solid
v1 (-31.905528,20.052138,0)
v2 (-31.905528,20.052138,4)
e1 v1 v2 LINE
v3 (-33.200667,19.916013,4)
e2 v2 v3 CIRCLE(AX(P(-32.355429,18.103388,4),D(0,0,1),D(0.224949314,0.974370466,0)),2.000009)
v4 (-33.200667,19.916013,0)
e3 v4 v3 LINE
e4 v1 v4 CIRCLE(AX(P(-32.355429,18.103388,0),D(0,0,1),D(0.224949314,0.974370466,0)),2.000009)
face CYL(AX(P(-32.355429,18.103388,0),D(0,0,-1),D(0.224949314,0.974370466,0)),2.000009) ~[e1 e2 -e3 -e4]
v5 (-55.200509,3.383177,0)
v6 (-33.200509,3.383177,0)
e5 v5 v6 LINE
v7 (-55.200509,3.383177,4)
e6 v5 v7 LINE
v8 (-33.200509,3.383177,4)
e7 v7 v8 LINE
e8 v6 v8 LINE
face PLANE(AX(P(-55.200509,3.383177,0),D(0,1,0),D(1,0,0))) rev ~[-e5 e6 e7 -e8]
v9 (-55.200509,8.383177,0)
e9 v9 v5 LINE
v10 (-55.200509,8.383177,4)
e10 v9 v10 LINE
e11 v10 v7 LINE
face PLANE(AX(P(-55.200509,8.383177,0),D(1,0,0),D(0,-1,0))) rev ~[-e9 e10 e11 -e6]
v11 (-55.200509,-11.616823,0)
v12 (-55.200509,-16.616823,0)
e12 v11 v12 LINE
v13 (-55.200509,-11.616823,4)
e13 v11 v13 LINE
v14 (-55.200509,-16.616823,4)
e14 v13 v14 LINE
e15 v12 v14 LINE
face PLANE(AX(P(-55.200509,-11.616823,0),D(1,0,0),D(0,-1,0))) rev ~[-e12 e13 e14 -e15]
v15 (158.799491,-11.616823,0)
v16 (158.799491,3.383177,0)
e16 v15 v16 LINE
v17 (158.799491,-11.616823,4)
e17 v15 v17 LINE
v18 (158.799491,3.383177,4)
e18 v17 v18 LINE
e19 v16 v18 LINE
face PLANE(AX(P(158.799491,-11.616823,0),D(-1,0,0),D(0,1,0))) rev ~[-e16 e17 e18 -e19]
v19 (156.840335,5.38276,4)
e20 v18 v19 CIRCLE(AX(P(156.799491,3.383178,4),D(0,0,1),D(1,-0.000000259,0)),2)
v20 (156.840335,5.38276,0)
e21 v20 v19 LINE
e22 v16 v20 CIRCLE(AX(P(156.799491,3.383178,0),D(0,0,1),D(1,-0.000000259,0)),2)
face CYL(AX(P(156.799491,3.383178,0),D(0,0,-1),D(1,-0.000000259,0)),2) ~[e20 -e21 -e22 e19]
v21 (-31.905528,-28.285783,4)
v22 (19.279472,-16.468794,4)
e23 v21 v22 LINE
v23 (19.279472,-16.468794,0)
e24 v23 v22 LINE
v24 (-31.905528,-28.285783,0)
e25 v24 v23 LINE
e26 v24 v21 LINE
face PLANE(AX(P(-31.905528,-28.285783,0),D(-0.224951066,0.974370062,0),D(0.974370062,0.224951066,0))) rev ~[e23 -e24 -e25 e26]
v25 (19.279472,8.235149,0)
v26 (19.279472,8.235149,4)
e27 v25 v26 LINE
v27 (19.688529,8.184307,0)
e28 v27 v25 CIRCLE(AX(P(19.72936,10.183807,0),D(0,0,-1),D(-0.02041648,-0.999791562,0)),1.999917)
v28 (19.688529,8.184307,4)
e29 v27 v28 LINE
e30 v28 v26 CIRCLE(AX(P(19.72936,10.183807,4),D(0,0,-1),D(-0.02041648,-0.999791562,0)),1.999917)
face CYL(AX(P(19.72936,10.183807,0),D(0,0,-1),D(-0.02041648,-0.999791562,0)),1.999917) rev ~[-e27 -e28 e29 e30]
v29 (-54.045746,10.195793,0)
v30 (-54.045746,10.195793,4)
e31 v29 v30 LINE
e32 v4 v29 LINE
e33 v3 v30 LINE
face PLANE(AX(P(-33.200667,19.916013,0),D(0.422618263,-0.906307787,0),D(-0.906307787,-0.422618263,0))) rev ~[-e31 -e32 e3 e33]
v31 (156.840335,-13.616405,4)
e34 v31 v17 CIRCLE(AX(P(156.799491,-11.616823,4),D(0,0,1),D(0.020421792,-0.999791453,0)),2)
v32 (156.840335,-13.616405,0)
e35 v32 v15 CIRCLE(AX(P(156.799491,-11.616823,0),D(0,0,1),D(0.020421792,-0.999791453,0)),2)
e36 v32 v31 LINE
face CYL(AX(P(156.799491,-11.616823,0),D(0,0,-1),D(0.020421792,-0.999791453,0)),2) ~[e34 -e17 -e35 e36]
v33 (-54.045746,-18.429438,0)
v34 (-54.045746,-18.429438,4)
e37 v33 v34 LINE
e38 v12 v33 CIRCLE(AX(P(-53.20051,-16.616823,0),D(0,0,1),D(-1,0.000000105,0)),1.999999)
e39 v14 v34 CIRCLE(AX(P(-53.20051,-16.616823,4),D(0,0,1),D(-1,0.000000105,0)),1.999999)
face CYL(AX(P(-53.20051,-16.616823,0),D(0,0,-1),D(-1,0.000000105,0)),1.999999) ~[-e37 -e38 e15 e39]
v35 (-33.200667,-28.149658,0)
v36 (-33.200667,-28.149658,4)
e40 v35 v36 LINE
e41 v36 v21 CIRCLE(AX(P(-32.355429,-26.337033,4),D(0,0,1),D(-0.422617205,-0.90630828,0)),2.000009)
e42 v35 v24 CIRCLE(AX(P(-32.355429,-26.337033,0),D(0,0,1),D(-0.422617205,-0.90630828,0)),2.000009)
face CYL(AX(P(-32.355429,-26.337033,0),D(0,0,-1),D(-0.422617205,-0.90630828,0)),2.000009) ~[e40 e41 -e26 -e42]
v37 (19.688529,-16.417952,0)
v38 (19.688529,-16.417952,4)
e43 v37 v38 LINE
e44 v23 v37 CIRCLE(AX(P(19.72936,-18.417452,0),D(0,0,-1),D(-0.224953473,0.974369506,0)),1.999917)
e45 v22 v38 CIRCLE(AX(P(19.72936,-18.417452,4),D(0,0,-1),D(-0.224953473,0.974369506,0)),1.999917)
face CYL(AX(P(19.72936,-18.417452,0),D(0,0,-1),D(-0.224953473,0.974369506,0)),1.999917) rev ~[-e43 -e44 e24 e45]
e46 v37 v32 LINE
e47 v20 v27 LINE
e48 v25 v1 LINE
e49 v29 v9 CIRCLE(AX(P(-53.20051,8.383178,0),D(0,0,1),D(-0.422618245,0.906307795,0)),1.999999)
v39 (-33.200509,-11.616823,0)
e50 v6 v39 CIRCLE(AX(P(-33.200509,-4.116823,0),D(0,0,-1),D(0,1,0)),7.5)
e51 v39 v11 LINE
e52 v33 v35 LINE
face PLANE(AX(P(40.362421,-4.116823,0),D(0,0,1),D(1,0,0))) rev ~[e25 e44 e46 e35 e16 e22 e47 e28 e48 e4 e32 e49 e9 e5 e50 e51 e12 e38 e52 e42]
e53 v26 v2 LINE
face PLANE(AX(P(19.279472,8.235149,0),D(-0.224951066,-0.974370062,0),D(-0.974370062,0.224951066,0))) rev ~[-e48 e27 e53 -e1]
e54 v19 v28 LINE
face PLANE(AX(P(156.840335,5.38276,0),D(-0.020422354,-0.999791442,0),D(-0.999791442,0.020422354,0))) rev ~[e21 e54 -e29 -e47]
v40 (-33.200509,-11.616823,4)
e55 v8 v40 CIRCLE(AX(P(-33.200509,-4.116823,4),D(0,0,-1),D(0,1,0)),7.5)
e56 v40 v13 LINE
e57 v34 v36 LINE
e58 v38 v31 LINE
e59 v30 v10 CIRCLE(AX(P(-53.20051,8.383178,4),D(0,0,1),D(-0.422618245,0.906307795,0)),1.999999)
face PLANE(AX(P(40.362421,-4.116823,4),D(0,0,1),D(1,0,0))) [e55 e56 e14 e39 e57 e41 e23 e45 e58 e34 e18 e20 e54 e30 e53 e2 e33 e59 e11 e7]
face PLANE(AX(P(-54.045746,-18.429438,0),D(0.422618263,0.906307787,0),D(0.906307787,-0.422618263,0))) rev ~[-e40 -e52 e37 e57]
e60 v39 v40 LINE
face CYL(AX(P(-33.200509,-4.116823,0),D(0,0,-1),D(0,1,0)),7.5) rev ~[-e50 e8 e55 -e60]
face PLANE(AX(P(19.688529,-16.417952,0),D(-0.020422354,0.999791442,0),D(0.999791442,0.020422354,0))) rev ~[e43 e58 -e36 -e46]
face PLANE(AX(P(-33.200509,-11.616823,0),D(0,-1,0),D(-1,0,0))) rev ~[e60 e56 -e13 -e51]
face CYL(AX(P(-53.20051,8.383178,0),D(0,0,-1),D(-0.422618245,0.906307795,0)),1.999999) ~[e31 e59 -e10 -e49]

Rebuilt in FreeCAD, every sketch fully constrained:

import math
import FreeCAD as App
import Part
import Sketcher
from FreeCAD import Vector
Q = App.Units.Quantity

doc = App.newDocument("Part")
params = doc.addObject("Spreadsheet::Sheet", "Params")
for row, (alias, value) in enumerate([
    ("sketch1_radius", "1.999999 mm"),
    ("sketch1_radius2", "7.5 mm"),
    ("sketch1_width", "22 mm"),
    ("sketch1_height", "5 mm"),
    ("sketch1_length", "23 mm"),
    ("pad1_length", "4 mm"),
], start=1):
    params.set(f"A{row}", alias)
    params.set(f"B{row}", "=" + value)
    params.setAlias(f"B{row}", alias)

body = doc.addObject("PartDesign::Body", "Body")

sketch1 = body.newObject("Sketcher::SketchObject", "Sketch")
sketch1.AttachmentSupport = (doc.getObject("XY_Plane"), [""])
sketch1.MapMode = "FlatFace"
sketch1.addGeometry([
    Part.LineSegment(Vector(-55.2, 8.38, 0), Vector(-55.2, 3.38, 0)),
    Part.LineSegment(Vector(-55.2, 3.38, 0), Vector(-33.2, 3.38, 0)),
    Part.ArcOfCircle(Part.Circle(Vector(-33.2, -4.12, 0), Vector(0, 0, 1), 7.5), math.radians(-90), math.radians(90)),
    Part.LineSegment(Vector(-33.2, -11.62, 0), Vector(-55.2, -11.62, 0)),
    Part.LineSegment(Vector(-55.2, -11.62, 0), Vector(-55.2, -16.62, 0)),
    Part.ArcOfCircle(Part.Circle(Vector(-53.2, -16.62, 0), Vector(0, 0, 1), 2), math.radians(180), math.radians(245)),
    Part.LineSegment(Vector(-54.05, -18.43, 0), Vector(-33.2, -28.15, 0)),
    Part.ArcOfCircle(Part.Circle(Vector(-32.36, -26.34, 0), Vector(0, 0, 1), 2), math.radians(-115), math.radians(-77)),
    Part.LineSegment(Vector(-31.91, -28.29, 0), Vector(19.28, -16.47, 0)),
    Part.ArcOfCircle(Part.Circle(Vector(19.73, -18.42, 0), Vector(0, 0, 1), 2), math.radians(91.17), math.radians(103)),
    Part.LineSegment(Vector(19.69, -16.42, 0), Vector(156.84, -13.62, 0)),
    Part.ArcOfCircle(Part.Circle(Vector(156.8, -11.62, 0), Vector(0, 0, 1), 2), math.radians(-89), math.radians(0)),
    Part.LineSegment(Vector(158.8, -11.62, 0), Vector(158.8, 3.38, 0)),
    Part.ArcOfCircle(Part.Circle(Vector(156.8, 3.38, 0), Vector(0, 0, 1), 2), math.radians(0), math.radians(89)),
    Part.LineSegment(Vector(156.84, 5.38, 0), Vector(19.69, 8.18, 0)),
    Part.ArcOfCircle(Part.Circle(Vector(19.73, 10.18, 0), Vector(0, 0, 1), 2), math.radians(-103), math.radians(-91.17)),
    Part.LineSegment(Vector(19.28, 8.24, 0), Vector(-31.91, 20.05, 0)),
    Part.ArcOfCircle(Part.Circle(Vector(-32.36, 18.1, 0), Vector(0, 0, 1), 2), math.radians(77), math.radians(115)),
    Part.LineSegment(Vector(-33.2, 19.92, 0), Vector(-54.05, 10.2, 0)),
    Part.ArcOfCircle(Part.Circle(Vector(-53.2, 8.38, 0), Vector(0, 0, 1), 2), math.radians(115), math.radians(180)),
], False)
sketch1.addConstraint([
    Sketcher.Constraint("Coincident", 0, 2, 1, 1),
    Sketcher.Constraint("Tangent", 1, 2, 2, 2),
    Sketcher.Constraint("Tangent", 2, 1, 3, 1),
    Sketcher.Constraint("Coincident", 3, 2, 4, 1),
    Sketcher.Constraint("Tangent", 4, 2, 5, 1),
    Sketcher.Constraint("Tangent", 5, 2, 6, 1),
    Sketcher.Constraint("Tangent", 6, 2, 7, 1),
    Sketcher.Constraint("Tangent", 7, 2, 8, 1),
    Sketcher.Constraint("Coincident", 8, 2, 9, 2),
    Sketcher.Constraint("Coincident", 9, 1, 10, 1),
    Sketcher.Constraint("Tangent", 10, 2, 11, 1),
    Sketcher.Constraint("Tangent", 11, 2, 12, 1),
    Sketcher.Constraint("Tangent", 12, 2, 13, 1),
    Sketcher.Constraint("Tangent", 13, 2, 14, 1),
    Sketcher.Constraint("Coincident", 14, 2, 15, 2),
    Sketcher.Constraint("Coincident", 15, 1, 16, 1),
    Sketcher.Constraint("Tangent", 16, 2, 17, 1),
    Sketcher.Constraint("Tangent", 17, 2, 18, 1),
    Sketcher.Constraint("Tangent", 18, 2, 19, 1),
    Sketcher.Constraint("Tangent", 19, 2, 0, 1),
    Sketcher.Constraint("Vertical", 0),
    Sketcher.Constraint("Horizontal", 1),
    Sketcher.Constraint("Horizontal", 3),
    Sketcher.Constraint("Vertical", 4),
    Sketcher.Constraint("Vertical", 12),
    Sketcher.Constraint("Equal", 5, 11),
    Sketcher.Constraint("Equal", 11, 13),
    Sketcher.Constraint("Equal", 9, 15),
    Sketcher.Constraint("Equal", 7, 17),
    Sketcher.Constraint("Equal", 13, 19),
    Sketcher.Constraint("Horizontal", 13, 3, 0, 2),
    Sketcher.Constraint("Horizontal", 11, 3, 2, 1),
    Sketcher.Constraint("Vertical", 9, 3, 15, 3),
    Sketcher.Constraint("Vertical", 7, 3, 17, 3),
    Sketcher.Constraint("Vertical", 5, 3, 19, 3),
    Sketcher.Constraint("Vertical", 10, 2, 13, 2),
    Sketcher.Constraint("Vertical", 9, 1, 14, 2),
    Sketcher.Constraint("Vertical", 8, 2, 15, 1),
    Sketcher.Constraint("Vertical", 7, 2, 16, 2),
    Sketcher.Constraint("Vertical", 6, 2, 17, 2),
    Sketcher.Constraint("Radius", 5, 1.999999),
    Sketcher.Constraint("Radius", 2, 7.5),
    Sketcher.Constraint("DistanceX", 1, 1, 1, 2, 22.0),
    Sketcher.Constraint("DistanceY", 0, 2, 0, 1, 5.0),
    Sketcher.Constraint("Angle", 6, Q("-25 deg")),
    Sketcher.Constraint("Angle", 8, Q("13.000001 deg")),
    Sketcher.Constraint("Distance", 6, 23.0),
    Sketcher.Constraint("DistanceX", 2, 3, 11, 3, 190.0),
    Sketcher.Constraint("Radius", 7, 2.000009),
    Sketcher.Constraint("Radius", 9, 1.999917),
    Sketcher.Constraint("DistanceX", 7, 2, 8, 2, 51.185),
    Sketcher.Constraint("DistanceY", 8, 2, 15, 3, 26.652601),
    Sketcher.Constraint("DistanceY", 9, 3, 9, 1, 1.9995),
    Sketcher.Constraint("DistanceX", 2, 3, -1, 1, 33.200509),
    Sketcher.Constraint("DistanceY", -1, 1, 17, 3, 18.103388),
])
sketch1.setExpression("Constraints[40]", "Params.sketch1_radius")
sketch1.setExpression("Constraints[41]", "Params.sketch1_radius2")
sketch1.setExpression("Constraints[42]", "Params.sketch1_width")
sketch1.setExpression("Constraints[43]", "Params.sketch1_height")
sketch1.setExpression("Constraints[46]", "Params.sketch1_length")
pad1 = body.newObject("PartDesign::Pad", "Pad")
pad1.Profile = sketch1
pad1.setExpression("Length", "Params.pad1_length")

doc.recompute()
